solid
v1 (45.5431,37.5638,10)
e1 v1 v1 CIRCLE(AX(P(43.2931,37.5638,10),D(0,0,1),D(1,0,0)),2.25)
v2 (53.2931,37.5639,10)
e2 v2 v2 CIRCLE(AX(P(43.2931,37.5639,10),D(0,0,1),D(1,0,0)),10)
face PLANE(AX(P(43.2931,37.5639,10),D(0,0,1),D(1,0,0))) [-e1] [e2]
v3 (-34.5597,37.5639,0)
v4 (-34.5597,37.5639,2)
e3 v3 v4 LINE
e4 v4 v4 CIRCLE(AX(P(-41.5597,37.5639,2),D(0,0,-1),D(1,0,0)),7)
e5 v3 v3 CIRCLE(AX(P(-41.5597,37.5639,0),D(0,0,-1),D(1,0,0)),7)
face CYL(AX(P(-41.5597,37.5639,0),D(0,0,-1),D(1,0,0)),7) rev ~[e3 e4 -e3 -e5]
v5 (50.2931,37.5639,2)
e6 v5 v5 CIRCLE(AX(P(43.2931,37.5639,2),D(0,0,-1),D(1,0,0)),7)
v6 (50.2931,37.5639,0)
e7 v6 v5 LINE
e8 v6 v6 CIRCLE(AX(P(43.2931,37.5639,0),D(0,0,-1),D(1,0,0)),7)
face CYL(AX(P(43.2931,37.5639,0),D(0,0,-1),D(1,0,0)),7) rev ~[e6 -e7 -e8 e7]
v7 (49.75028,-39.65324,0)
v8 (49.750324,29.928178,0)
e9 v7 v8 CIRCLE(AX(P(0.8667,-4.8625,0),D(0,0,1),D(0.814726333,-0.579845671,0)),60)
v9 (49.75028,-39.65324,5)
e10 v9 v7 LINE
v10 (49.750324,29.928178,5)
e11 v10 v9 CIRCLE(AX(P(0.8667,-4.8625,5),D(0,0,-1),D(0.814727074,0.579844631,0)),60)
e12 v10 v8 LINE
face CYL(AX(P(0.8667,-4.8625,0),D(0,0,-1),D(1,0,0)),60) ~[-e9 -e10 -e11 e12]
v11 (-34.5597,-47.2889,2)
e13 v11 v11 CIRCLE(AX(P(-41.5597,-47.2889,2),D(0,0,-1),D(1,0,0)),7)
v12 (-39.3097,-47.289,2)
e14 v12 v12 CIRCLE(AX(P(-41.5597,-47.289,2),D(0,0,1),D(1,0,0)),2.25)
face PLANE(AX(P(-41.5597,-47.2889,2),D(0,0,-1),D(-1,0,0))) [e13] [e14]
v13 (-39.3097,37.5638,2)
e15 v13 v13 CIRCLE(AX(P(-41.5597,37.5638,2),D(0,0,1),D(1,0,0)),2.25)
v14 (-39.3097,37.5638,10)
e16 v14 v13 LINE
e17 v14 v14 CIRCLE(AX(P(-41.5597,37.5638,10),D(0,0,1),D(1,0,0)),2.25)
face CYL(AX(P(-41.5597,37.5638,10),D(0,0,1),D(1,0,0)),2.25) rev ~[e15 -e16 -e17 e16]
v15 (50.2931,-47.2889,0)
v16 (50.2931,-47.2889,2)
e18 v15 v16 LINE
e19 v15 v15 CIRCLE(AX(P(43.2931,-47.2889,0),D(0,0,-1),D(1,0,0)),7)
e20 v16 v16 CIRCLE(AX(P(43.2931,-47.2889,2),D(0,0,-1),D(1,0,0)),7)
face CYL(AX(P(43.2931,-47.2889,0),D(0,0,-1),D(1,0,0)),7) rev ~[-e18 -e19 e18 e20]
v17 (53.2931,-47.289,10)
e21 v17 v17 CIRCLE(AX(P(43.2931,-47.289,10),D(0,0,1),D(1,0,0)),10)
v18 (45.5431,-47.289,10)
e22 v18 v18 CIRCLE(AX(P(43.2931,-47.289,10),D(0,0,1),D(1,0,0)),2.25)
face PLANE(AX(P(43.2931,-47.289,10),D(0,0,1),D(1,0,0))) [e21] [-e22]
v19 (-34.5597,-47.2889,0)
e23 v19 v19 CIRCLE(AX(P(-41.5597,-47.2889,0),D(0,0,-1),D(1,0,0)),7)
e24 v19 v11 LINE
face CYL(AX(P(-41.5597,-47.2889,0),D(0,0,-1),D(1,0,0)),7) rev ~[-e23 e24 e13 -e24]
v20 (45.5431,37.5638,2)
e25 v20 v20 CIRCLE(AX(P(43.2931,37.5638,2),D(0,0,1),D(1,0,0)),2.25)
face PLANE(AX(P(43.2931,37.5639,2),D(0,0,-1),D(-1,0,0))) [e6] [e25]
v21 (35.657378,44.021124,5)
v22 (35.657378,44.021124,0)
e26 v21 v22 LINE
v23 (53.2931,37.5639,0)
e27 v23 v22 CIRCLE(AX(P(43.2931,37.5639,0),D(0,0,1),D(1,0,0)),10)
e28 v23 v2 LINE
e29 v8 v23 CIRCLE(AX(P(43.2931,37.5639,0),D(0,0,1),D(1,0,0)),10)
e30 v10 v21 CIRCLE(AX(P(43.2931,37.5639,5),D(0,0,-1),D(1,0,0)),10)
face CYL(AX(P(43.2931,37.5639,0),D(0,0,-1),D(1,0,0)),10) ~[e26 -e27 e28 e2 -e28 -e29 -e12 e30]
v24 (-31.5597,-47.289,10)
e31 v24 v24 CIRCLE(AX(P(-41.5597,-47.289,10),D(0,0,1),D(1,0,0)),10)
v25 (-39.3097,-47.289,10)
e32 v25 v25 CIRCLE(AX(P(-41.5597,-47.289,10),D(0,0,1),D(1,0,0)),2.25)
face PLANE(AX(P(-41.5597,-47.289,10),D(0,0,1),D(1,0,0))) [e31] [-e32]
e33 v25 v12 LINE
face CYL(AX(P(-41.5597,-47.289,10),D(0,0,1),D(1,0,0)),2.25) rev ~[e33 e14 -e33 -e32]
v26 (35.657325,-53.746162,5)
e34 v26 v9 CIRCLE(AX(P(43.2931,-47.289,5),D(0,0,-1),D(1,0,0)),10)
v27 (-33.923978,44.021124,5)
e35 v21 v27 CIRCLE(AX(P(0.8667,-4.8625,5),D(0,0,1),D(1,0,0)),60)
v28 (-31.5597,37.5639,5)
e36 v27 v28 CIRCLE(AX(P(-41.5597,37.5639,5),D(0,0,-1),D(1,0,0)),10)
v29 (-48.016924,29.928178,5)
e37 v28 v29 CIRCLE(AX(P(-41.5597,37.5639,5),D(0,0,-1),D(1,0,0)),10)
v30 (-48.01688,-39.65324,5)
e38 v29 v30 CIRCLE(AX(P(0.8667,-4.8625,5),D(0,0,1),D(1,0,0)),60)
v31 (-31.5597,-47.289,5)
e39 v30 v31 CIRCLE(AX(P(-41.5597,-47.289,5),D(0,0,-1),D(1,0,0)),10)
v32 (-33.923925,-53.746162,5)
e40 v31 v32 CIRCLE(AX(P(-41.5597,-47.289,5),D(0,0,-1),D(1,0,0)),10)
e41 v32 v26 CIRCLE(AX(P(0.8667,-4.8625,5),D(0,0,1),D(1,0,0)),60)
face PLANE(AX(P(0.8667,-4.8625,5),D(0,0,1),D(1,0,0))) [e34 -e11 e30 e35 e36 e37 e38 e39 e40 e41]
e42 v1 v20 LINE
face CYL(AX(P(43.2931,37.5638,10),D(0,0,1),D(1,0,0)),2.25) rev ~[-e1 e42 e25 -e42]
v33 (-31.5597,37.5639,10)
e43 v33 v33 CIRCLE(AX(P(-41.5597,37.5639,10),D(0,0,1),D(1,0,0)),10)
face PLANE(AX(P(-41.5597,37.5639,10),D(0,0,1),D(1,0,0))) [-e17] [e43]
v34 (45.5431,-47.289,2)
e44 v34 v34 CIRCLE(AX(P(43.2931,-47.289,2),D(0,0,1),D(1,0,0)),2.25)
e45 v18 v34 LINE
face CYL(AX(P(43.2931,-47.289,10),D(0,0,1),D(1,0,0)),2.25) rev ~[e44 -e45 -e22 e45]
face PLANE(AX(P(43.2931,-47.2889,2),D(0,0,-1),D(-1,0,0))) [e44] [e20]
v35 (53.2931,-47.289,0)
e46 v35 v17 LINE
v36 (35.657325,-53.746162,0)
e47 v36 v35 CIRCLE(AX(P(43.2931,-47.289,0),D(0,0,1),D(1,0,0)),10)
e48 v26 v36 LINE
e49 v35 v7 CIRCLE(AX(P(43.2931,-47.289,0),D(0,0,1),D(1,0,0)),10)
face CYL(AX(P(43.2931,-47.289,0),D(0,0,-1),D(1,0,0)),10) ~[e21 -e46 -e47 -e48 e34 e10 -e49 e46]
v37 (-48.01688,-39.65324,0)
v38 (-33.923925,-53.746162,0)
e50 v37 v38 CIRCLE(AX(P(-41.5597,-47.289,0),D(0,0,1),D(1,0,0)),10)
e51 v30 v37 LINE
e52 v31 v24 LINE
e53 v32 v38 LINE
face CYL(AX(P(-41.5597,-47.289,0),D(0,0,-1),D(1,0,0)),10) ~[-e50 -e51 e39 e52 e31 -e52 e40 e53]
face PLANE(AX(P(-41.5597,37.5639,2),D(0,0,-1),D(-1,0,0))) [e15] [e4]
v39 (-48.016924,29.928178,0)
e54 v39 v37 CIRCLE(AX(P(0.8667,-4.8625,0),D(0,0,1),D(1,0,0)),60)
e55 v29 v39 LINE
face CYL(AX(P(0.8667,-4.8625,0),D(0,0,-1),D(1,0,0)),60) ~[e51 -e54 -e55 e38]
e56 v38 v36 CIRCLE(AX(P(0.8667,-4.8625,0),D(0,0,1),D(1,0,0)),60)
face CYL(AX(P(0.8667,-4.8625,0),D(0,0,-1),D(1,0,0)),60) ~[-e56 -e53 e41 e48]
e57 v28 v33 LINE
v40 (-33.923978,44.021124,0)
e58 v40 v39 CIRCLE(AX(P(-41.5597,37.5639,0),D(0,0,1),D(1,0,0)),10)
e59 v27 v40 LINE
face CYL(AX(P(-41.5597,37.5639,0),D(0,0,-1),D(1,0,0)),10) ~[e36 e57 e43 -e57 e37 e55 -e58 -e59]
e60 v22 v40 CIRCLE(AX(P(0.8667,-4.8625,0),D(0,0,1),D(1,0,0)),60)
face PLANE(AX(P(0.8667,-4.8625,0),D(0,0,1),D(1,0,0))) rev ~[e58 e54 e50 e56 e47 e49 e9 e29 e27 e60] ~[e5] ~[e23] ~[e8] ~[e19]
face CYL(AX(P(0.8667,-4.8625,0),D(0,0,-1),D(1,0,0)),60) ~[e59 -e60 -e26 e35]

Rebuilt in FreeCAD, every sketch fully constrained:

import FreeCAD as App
import Part
import Sketcher
from FreeCAD import Vector
Q = App.Units.Quantity

doc = App.newDocument("Part")
body = doc.addObject("PartDesign::Body", "Body")

# Sketch on XY plane
sketch1 = body.newObject("Sketcher::SketchObject", "Sketch")
sketch1.AttachmentSupport = (doc.getObject("XY_Plane"), [""])
sketch1.MapMode = "FlatFace"
sketch1.addGeometry(Part.Circle(Vector(0.8667, -4.8625, 0), Vector(0, 0, 1), 60), False)
sketch1.addConstraint([
    Sketcher.Constraint("Diameter", 0, Q("120 mm")),
    Sketcher.Constraint("DistanceX", -1, 1, 0, 3, Q("0.8667 mm")),
    Sketcher.Constraint("DistanceY", 0, 3, -1, 1, Q("4.8625 mm")),
])
pad1 = body.newObject("PartDesign::Pad", "Pad")
pad1.Profile = sketch1
pad1.Length = 5

# Sketch on XY plane
sketch2 = body.newObject("Sketcher::SketchObject", "Sketch001")
sketch2.AttachmentSupport = (doc.getObject("XY_Plane"), [""])
sketch2.MapMode = "FlatFace"
sketch2.addGeometry([
    Part.Circle(Vector(-41.5597, -47.289, 0), Vector(0, 0, 1), 10),
    Part.Circle(Vector(-41.5597, 37.5639, 0), Vector(0, 0, 1), 10),
    Part.Circle(Vector(43.2931, -47.289, 0), Vector(0, 0, 1), 10),
    Part.Circle(Vector(43.2931, 37.5639, 0), Vector(0, 0, 1), 10),
], False)
sketch2.addConstraint([
    Sketcher.Constraint("Equal", 0, 1),
    Sketcher.Constraint("Equal", 1, 2),
    Sketcher.Constraint("Equal", 2, 3),
    Sketcher.Constraint("Horizontal", 0, 3, 2, 3),
    Sketcher.Constraint("Horizontal", 1, 3, 3, 3),
    Sketcher.Constraint("Vertical", 0, 3, 1, 3),
    Sketcher.Constraint("Vertical", 2, 3, 3, 3),
    Sketcher.Constraint("Diameter", 0, Q("20 mm")),
    Sketcher.Constraint("DistanceY", 0, 3, -1, 1, Q("47.289 mm")),
    Sketcher.Constraint("DistanceY", -1, 1, 1, 3, Q("37.564 mm")),
    Sketcher.Constraint("DistanceX", -1, 1, 2, 3, Q("43.293 mm")),
    Sketcher.Constraint("DistanceX", 0, 3, -1, 1, Q("41.5597 mm")),
])
pad2 = body.newObject("PartDesign::Pad", "Pad001")
pad2.Profile = sketch2
pad2.Length = 10

# Sketch on XY plane
sketch3 = body.newObject("Sketcher::SketchObject", "Sketch002")
sketch3.AttachmentSupport = (doc.getObject("XY_Plane"), [""])
sketch3.MapMode = "FlatFace"
sketch3.AttachmentOffset = App.Placement(Vector(0, 0, 10), App.Rotation())
sketch3.addGeometry([
    Part.Circle(Vector(-41.5597, -47.289, 0), Vector(0, 0, 1), 2.25),
    Part.Circle(Vector(-41.5597, 37.5638, 0), Vector(0, 0, 1), 2.25),
    Part.Circle(Vector(43.2931, -47.289, 0), Vector(0, 0, 1), 2.25),
    Part.Circle(Vector(43.2931, 37.5638, 0), Vector(0, 0, 1), 2.25),
], False)
sketch3.addConstraint([
    Sketcher.Constraint("Equal", 0, 1),
    Sketcher.Constraint("Equal", 1, 2),
    Sketcher.Constraint("Equal", 2, 3),
    Sketcher.Constraint("Horizontal", 0, 3, 2, 3),
    Sketcher.Constraint("Horizontal", 1, 3, 3, 3),
    Sketcher.Constraint("Vertical", 0, 3, 1, 3),
    Sketcher.Constraint("Vertical", 2, 3, 3, 3),
    Sketcher.Constraint("Diameter", 0, Q("4.5 mm")),
    Sketcher.Constraint("DistanceY", 0, 3, -1, 1, Q("47.289 mm")),
    Sketcher.Constraint("DistanceX", -1, 1, 2, 3, Q("43.293 mm")),
    Sketcher.Constraint("DistanceX", 0, 3, -1, 1, Q("41.5597 mm")),
    Sketcher.Constraint("DistanceY", -1, 1, 1, 3, Q("37.5638 mm")),
])
pocket1 = body.newObject("PartDesign::Pocket", "Pocket")
pocket1.Profile = sketch3
pocket1.Length = 10

# Sketch on XY plane
sketch4 = body.newObject("Sketcher::SketchObject", "Sketch003")
sketch4.AttachmentSupport = (doc.getObject("XY_Plane"), [""])
sketch4.MapMode = "FlatFace"
sketch4.addGeometry([
    Part.Circle(Vector(-41.5597, 37.5639, 0), Vector(0, 0, 1), 7),
    Part.Circle(Vector(43.2931, 37.5639, 0), Vector(0, 0, 1), 7),
    Part.Circle(Vector(43.2931, -47.2889, 0), Vector(0, 0, 1), 7),
    Part.Circle(Vector(-41.5597, -47.2889, 0), Vector(0, 0, 1), 7),
], False)
sketch4.addConstraint([
    Sketcher.Constraint("Equal", 0, 1),
    Sketcher.Constraint("Equal", 1, 2),
    Sketcher.Constraint("Equal", 2, 3),
    Sketcher.Constraint("Horizontal", 0, 3, 1, 3),
    Sketcher.Constraint("Horizontal", 2, 3, 3, 3),
    Sketcher.Constraint("Vertical", 1, 3, 2, 3),
    Sketcher.Constraint("Vertical", 0, 3, 3, 3),
    Sketcher.Constraint("Diameter", 0, Q("14 mm")),
    Sketcher.Constraint("DistanceY", -1, 1, 0, 3, Q("37.564 mm")),
    Sketcher.Constraint("DistanceX", -1, 1, 1, 3, Q("43.293 mm")),
    Sketcher.Constraint("DistanceY", 2, 3, -1, 1, Q("47.289 mm")),
    Sketcher.Constraint("DistanceX", 0, 3, -1, 1, Q("41.5597 mm")),
])
pocket2 = body.newObject("PartDesign::Pocket", "Pocket001")
pocket2.Profile = sketch4
pocket2.Length = 2
pocket2.Reversed = True

doc.recompute()
